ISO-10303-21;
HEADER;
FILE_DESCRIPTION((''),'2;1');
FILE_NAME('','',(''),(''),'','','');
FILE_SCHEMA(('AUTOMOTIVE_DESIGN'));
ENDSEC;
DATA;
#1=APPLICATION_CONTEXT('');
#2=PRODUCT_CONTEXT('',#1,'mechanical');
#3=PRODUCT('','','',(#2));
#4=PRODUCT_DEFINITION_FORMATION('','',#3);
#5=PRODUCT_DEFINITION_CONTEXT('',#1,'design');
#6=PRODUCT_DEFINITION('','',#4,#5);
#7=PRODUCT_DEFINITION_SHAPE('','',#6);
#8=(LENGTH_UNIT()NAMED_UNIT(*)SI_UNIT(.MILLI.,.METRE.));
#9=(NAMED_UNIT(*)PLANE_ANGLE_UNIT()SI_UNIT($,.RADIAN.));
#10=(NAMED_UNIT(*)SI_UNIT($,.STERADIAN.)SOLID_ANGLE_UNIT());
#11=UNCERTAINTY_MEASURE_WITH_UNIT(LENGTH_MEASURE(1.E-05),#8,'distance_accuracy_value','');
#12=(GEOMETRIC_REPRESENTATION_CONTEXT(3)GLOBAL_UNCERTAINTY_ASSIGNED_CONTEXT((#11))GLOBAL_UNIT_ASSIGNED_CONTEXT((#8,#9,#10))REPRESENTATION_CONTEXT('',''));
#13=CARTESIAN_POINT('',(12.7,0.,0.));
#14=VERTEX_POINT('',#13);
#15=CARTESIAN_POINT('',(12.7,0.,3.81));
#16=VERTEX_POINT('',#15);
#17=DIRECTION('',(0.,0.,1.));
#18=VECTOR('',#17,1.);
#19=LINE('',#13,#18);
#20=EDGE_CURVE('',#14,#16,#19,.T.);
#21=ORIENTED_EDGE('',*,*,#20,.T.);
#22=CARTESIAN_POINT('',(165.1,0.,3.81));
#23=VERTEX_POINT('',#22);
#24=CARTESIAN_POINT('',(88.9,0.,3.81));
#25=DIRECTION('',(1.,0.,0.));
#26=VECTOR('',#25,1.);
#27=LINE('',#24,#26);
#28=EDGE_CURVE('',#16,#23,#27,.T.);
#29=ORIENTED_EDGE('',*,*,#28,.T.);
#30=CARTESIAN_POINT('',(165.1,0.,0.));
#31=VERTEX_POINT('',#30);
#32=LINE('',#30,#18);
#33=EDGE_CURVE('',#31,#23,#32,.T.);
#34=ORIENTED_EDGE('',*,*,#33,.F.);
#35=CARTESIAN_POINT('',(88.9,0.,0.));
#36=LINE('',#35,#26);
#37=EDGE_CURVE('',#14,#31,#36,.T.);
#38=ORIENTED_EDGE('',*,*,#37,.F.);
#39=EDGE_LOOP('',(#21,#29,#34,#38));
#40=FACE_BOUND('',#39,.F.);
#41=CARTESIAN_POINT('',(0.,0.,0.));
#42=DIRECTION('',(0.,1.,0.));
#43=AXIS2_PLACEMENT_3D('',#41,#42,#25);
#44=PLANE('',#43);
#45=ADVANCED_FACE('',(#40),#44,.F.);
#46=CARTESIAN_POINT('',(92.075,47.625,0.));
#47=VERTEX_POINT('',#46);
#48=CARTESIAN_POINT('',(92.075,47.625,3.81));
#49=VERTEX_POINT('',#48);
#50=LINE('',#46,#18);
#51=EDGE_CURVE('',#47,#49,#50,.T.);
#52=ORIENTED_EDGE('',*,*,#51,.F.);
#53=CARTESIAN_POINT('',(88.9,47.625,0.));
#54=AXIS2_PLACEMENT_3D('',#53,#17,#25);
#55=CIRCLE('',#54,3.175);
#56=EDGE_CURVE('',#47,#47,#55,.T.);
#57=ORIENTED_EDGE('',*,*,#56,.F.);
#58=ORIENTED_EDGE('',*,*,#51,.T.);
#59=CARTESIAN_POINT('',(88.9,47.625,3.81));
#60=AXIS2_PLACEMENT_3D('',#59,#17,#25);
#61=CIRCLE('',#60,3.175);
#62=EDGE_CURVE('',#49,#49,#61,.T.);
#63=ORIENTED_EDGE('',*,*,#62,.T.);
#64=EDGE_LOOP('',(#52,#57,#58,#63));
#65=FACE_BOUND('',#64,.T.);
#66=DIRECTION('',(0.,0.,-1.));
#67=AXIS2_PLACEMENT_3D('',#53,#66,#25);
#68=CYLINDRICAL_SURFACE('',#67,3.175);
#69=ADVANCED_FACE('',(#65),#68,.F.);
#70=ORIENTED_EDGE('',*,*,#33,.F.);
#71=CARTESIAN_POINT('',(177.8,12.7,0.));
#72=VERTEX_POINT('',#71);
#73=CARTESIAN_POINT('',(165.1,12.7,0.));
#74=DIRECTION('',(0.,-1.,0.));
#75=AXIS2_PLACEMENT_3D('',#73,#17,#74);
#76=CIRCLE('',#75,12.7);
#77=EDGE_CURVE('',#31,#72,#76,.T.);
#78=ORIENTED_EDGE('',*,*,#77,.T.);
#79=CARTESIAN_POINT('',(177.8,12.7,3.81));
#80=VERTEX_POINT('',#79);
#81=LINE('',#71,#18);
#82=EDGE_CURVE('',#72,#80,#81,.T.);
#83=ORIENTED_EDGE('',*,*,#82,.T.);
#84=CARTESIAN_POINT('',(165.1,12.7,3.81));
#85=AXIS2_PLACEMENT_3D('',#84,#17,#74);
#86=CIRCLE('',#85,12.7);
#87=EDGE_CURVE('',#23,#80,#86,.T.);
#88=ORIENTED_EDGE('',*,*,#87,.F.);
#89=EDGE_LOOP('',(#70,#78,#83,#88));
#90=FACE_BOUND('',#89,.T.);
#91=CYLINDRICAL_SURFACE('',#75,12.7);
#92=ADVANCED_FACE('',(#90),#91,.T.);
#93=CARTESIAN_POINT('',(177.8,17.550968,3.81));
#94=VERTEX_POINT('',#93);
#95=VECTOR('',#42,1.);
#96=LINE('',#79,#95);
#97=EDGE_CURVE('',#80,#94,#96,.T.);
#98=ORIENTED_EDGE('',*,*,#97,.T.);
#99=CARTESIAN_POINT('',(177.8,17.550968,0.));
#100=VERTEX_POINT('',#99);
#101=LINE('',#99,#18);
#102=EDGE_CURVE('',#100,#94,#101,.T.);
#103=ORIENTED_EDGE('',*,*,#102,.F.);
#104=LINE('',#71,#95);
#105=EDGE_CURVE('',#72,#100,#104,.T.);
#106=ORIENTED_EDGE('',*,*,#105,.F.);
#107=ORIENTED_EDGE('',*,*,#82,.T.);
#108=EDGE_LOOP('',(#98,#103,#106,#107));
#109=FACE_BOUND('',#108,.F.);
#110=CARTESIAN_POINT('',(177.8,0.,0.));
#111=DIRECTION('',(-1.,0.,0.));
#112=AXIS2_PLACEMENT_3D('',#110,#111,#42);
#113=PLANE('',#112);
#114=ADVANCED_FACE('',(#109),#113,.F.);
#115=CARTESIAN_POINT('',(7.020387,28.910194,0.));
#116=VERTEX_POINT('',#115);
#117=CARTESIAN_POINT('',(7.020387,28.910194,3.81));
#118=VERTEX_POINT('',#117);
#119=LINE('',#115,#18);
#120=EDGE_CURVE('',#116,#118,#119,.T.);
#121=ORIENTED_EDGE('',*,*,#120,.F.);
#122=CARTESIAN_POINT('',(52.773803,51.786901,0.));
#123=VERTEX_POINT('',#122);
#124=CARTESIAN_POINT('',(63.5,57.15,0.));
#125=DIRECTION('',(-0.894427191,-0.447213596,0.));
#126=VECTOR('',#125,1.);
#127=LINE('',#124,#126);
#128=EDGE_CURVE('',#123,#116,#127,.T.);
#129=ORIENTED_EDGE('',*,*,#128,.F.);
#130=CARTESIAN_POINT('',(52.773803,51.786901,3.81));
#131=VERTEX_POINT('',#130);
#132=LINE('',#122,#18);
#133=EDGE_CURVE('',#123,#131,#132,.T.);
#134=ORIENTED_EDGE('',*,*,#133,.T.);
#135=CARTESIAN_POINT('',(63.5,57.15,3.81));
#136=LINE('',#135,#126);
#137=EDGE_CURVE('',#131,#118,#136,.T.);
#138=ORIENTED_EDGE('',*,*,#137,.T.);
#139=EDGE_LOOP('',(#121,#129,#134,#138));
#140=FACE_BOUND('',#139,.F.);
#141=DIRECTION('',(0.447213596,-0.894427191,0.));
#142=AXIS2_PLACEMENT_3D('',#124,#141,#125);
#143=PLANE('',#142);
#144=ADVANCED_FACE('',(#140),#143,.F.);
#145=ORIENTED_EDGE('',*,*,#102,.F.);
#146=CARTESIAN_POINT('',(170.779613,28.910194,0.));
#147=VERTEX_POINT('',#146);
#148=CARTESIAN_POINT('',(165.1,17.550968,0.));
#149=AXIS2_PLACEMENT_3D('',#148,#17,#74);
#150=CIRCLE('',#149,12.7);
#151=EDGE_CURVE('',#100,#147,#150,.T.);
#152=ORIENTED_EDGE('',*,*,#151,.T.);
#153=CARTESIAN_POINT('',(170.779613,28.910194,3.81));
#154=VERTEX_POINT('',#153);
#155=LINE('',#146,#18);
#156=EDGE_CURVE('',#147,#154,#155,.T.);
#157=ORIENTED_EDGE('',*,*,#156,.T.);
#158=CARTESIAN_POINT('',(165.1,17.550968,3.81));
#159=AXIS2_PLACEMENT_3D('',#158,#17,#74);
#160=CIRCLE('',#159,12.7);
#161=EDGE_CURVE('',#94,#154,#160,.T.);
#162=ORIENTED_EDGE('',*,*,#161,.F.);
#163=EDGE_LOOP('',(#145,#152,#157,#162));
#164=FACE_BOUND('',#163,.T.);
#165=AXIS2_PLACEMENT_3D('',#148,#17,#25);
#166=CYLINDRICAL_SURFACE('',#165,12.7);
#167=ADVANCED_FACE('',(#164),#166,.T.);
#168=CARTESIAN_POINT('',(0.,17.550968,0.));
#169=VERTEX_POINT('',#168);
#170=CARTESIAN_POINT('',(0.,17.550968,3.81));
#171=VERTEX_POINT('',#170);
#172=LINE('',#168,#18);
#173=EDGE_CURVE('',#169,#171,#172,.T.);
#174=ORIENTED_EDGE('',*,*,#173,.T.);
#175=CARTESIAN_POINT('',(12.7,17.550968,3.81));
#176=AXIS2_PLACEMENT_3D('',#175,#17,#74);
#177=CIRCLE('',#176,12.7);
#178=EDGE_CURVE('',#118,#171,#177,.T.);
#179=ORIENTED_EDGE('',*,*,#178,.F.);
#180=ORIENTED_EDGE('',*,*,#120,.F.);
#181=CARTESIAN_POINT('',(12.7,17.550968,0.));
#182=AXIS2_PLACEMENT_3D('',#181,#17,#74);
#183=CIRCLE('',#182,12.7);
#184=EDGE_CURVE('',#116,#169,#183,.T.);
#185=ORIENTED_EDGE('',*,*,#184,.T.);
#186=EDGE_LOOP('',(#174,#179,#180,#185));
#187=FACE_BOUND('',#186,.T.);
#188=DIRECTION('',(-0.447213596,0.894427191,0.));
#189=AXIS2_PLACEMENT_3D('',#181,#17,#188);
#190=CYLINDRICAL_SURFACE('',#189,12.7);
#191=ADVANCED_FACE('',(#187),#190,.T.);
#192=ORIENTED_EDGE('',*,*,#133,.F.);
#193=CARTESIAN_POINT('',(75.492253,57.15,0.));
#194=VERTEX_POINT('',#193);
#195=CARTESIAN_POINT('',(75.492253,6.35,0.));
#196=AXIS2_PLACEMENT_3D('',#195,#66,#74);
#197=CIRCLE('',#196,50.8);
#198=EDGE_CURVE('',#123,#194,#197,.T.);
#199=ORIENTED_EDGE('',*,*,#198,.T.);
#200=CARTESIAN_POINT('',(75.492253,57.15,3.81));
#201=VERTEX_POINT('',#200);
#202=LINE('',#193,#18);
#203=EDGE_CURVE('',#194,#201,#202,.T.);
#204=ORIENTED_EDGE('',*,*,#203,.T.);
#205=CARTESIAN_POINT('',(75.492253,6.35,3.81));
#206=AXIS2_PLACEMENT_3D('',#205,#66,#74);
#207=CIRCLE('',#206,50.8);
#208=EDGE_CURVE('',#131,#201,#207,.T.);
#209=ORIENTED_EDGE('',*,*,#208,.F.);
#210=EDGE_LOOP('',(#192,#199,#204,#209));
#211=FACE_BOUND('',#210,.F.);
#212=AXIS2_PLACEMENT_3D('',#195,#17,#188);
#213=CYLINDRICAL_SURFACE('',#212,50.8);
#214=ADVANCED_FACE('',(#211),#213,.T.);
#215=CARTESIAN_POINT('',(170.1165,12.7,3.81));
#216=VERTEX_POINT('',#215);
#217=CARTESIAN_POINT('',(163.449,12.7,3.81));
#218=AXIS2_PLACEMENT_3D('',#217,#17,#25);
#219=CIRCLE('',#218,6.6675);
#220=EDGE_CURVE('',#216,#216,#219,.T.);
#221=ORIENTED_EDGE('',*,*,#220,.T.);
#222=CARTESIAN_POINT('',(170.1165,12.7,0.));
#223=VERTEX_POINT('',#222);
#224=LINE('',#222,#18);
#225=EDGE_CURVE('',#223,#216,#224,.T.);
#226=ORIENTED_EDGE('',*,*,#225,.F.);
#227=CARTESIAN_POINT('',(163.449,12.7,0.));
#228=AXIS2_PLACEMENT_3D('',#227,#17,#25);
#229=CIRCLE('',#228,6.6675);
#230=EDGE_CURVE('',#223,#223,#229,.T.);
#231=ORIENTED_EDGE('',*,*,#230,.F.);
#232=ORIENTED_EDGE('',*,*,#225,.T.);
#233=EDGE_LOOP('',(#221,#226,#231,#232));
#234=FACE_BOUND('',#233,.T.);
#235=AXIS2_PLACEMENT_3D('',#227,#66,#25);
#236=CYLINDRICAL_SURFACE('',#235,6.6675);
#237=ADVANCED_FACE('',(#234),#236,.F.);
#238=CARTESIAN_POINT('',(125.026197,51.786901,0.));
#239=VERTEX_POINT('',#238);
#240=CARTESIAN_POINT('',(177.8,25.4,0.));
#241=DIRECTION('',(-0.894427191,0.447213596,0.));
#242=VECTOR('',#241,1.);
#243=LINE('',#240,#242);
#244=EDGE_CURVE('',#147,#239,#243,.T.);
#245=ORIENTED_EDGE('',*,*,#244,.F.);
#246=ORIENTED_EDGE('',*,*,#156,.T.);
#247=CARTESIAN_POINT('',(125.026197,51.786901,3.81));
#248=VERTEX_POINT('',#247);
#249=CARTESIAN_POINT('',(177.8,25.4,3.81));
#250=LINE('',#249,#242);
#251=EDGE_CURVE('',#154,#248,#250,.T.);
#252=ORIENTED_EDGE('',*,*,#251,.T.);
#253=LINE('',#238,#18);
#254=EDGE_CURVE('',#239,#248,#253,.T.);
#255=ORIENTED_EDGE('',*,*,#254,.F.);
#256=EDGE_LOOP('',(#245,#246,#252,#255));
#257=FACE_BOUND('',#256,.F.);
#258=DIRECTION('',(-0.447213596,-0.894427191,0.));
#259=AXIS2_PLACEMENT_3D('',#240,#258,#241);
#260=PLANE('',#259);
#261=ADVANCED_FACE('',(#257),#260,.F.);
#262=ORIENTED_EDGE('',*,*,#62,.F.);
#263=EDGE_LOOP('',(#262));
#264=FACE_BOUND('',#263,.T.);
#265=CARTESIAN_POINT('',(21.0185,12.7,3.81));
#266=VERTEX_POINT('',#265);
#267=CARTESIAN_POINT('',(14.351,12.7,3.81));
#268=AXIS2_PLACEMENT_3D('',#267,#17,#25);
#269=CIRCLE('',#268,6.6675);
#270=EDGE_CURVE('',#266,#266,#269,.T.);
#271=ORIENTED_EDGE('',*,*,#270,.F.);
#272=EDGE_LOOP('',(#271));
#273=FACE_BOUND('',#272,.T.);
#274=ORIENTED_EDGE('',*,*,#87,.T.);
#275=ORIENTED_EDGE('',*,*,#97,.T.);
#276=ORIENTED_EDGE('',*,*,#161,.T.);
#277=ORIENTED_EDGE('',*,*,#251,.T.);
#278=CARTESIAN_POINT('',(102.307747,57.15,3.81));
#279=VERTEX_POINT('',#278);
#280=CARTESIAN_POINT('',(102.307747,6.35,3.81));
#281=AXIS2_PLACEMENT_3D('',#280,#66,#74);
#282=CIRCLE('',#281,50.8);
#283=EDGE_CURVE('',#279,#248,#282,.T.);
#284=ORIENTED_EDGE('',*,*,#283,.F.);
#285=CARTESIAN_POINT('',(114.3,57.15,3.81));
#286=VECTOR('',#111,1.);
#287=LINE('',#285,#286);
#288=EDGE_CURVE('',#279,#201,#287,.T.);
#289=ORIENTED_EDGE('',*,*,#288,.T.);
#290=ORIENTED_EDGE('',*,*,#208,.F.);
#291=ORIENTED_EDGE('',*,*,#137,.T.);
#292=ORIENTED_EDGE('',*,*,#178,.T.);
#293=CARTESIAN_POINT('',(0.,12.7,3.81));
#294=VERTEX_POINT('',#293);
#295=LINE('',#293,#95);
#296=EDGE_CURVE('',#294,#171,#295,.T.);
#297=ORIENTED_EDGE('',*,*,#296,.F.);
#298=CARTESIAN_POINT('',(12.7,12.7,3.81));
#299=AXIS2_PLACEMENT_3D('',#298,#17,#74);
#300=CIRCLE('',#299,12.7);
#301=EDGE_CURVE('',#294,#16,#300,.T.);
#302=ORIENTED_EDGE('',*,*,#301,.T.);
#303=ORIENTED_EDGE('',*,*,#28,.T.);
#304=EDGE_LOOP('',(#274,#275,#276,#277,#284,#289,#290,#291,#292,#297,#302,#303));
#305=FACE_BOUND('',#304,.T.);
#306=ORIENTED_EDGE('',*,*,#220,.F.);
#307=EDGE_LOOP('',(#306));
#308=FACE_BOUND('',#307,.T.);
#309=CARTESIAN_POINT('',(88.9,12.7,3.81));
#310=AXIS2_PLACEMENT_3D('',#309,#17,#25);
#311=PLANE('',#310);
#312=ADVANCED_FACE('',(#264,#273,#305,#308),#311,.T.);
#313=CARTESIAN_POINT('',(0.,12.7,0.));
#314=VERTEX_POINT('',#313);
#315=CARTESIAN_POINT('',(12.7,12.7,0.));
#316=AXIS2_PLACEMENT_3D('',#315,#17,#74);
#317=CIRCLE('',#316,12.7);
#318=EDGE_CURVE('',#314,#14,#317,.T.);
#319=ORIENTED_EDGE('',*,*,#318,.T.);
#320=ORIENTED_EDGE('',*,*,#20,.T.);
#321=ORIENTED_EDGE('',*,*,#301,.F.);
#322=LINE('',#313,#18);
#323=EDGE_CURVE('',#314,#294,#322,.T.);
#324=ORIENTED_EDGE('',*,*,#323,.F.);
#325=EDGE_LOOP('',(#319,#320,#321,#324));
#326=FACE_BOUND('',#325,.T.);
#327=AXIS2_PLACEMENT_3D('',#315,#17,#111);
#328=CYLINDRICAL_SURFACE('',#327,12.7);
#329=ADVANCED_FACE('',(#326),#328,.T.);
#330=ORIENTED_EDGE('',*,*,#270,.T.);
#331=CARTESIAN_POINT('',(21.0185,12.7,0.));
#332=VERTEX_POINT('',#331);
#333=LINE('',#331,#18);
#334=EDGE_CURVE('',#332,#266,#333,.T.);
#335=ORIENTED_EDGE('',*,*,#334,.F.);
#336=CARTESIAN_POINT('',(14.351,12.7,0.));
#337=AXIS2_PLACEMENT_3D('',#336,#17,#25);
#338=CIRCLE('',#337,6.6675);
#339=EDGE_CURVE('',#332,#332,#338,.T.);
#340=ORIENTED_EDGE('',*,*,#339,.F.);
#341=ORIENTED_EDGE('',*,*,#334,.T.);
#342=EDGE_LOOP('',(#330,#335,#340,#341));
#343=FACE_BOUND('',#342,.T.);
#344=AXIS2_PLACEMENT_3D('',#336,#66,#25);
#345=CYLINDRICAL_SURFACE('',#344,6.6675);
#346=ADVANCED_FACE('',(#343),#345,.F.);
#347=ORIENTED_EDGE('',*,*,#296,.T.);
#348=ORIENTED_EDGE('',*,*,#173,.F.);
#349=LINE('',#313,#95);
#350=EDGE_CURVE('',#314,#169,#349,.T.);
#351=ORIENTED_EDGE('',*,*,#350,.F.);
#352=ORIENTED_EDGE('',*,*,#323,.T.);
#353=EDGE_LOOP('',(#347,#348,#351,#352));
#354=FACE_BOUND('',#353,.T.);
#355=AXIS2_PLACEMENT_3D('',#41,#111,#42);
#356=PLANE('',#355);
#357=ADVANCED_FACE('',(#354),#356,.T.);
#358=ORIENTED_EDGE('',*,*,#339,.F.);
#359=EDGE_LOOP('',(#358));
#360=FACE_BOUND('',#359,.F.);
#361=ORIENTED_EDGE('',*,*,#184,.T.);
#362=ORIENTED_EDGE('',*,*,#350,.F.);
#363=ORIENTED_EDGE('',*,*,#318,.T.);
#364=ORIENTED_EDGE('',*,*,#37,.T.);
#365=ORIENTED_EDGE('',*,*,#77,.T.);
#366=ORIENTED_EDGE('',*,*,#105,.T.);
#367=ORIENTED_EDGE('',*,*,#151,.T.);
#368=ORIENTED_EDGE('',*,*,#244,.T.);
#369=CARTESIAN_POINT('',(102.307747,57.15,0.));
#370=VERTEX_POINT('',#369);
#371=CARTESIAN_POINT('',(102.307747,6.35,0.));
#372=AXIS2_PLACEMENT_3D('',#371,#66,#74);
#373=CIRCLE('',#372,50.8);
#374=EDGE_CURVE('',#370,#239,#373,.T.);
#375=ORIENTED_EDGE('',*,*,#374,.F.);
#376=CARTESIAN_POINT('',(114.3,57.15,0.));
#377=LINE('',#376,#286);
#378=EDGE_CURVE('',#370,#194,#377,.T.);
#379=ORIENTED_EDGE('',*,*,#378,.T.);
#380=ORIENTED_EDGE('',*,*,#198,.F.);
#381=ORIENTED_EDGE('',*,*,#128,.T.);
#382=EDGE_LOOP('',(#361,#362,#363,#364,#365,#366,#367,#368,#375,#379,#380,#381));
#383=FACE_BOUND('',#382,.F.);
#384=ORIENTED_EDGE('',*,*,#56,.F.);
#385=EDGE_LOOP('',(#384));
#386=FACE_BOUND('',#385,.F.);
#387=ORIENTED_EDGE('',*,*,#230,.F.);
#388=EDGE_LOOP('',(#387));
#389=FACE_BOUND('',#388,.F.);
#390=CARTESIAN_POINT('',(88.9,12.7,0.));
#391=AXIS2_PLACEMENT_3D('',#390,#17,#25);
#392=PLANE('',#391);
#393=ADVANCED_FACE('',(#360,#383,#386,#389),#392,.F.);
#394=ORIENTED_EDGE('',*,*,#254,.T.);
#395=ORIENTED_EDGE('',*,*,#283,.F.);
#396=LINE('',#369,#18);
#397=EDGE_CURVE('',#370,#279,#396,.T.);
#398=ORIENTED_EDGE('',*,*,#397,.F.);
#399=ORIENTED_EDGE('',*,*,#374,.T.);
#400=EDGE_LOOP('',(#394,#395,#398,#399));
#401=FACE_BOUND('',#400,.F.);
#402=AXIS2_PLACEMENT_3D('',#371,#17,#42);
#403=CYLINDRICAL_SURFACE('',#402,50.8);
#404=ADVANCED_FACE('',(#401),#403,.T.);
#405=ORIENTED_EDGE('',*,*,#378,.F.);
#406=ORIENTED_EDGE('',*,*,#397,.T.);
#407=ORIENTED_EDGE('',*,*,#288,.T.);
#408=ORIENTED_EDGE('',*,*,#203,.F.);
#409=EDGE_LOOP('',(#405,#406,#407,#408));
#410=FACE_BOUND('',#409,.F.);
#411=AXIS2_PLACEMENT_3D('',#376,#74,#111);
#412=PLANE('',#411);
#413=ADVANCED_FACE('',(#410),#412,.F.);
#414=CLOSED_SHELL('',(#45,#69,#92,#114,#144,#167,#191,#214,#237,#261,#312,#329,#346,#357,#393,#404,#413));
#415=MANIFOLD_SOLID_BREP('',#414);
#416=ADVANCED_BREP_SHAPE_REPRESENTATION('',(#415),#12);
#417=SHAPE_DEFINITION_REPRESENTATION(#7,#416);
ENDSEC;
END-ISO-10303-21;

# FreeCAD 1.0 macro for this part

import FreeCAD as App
import Part
import Sketcher
Q = App.Units.Quantity


def edges_at(feature, points):
    """Names of the edges that pass closest to the given points."""
    edges = feature.Shape.Edges
    near = lambda p: min(range(len(edges)), key=lambda i: edges[i].distToShape(Part.Vertex(*p))[0])
    return sorted({f"Edge{near(p) + 1}" for p in points})


def add_polygon(sketch, points):
    """Adds a closed chain of lines whose ends are joined by coincident constraints."""
    first, n = sketch.GeometryCount, len(points)
    for a, b in zip(points, points[1:] + points[:1]):
        sketch.addGeometry(Part.LineSegment(App.Vector(*a, 0), App.Vector(*b, 0)), False)
    for i in range(n):
        sketch.addConstraint(Sketcher.Constraint("Coincident", first + i, 2, first + (i + 1) % n, 1))

doc = App.newDocument("Part")
body = doc.addObject("PartDesign::Body", "Body")

sketch1 = body.newObject("Sketcher::SketchObject", "Sketch")
sketch1.AttachmentSupport = (doc.getObject("XY_Plane"), [""])
sketch1.MapMode = "FlatFace"
add_polygon(sketch1, [(0, 25.4), (0, 0), (177.8, 0), (177.8, 25.4), (114.3, 57.1), (63.5, 57.1)])
sketch1.addGeometry(Part.Circle(App.Vector(14.4, 12.7, 0), App.Vector(0, 0, 1), 6.7), False)
sketch1.addGeometry(Part.Circle(App.Vector(163.4, 12.7, 0), App.Vector(0, 0, 1), 6.7), False)
sketch1.addGeometry(Part.Circle(App.Vector(88.9, 47.6, 0), App.Vector(0, 0, 1), 3.2), False)
sketch1.addConstraint([
    Sketcher.Constraint("Vertical", 0),
    Sketcher.Constraint("Horizontal", 1),
    Sketcher.Constraint("Vertical", 2),
    Sketcher.Constraint("Horizontal", 4),
    Sketcher.Constraint("Coincident", 0, 2, -1, 1),
    Sketcher.Constraint("Equal", 6, 7),
    Sketcher.Constraint("Horizontal", 6, 3, 7, 3),
    Sketcher.Constraint("Horizontal", 2, 2, 5, 2),
    Sketcher.Constraint("Equal", 3, 5),
    Sketcher.Constraint("Diameter", 8, Q("0.25 in")),
    Sketcher.Constraint("DistanceX", 1, 1, 1, 2, Q("7 in")),
    Sketcher.Constraint("DistanceX", 4, 2, 4, 1, Q("2 in")),
    Sketcher.Constraint("DistanceY", 0, 2, 0, 1, Q("1 in")),
    Sketcher.Constraint("Diameter", 6, Q("0.525 in")),
    Sketcher.Constraint("DistanceX", 8, 3, 3, 2, Q("1 in")),
    Sketcher.Constraint("DistanceY", -1, 1, 6, 3, Q("0.5 in")),
    Sketcher.Constraint("DistanceY", -1, 1, 3, 2, Q("2.25 in")),
    Sketcher.Constraint("DistanceX", 6, 3, 7, 3, Q("5.87 in")),
    Sketcher.Constraint("DistanceX", -1, 1, 6, 3, Q("0.565 in")),
    Sketcher.Constraint("DistanceY", -1, 1, 8, 3, Q("1.875 in")),
])
pad1 = body.newObject("PartDesign::Pad", "Pad")
pad1.Profile = sketch1
pad1.Length = Q("0.15 in")
doc.recompute()

fillet = body.newObject("PartDesign::Fillet", "Fillet")
fillet.Base = (pad1, edges_at(pad1, [(63.5, 57.15, 1.905), (114.3, 57.15, 1.905)]))
fillet.Radius = Q("2 in")
doc.recompute()

fillet2 = body.newObject("PartDesign::Fillet", "Fillet001")
fillet2.Base = (fillet, edges_at(fillet, [
    (0, 25.4, 1.905),
    (0, 0, 1.905),
    (177.8, 0, 1.905),
    (177.8, 25.4, 1.905),
]))
fillet2.Radius = Q("0.5 in")

doc.recompute()
